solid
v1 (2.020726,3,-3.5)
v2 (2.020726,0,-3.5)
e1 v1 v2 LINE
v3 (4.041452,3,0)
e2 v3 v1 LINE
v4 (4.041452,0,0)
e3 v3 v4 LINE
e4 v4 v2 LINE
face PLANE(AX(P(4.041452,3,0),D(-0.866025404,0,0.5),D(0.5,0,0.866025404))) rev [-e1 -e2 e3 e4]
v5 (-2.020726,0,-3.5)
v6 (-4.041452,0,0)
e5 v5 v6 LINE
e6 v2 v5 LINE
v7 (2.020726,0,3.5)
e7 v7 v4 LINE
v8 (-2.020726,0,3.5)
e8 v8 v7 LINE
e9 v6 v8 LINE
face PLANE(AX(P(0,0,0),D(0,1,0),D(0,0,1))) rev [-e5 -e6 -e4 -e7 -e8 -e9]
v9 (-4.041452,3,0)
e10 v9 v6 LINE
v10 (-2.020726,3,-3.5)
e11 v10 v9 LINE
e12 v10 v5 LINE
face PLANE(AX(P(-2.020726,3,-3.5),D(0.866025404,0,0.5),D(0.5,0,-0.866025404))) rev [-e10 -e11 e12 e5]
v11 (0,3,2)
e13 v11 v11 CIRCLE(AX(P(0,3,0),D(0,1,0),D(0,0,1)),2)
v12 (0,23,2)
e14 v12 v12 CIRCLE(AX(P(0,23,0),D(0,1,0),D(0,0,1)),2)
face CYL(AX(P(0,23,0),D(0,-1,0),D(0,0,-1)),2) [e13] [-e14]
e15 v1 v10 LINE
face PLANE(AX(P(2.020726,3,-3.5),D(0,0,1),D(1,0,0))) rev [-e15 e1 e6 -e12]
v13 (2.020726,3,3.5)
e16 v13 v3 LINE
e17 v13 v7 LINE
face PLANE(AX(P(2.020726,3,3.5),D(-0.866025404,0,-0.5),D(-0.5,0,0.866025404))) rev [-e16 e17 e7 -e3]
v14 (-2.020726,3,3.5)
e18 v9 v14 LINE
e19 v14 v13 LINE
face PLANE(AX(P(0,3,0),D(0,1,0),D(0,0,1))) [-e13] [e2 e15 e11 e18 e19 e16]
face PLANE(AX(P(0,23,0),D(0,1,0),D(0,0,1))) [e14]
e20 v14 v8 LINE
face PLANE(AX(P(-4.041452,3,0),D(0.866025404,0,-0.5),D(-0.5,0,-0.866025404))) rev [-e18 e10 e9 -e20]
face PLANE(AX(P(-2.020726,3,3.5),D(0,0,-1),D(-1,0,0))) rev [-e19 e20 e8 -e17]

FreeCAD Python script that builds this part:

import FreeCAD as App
import Part
import Sketcher
Q = App.Units.Quantity


def add_polygon(sketch, points):
    """Adds a closed chain of lines whose ends are joined by coincident constraints."""
    first, n = sketch.GeometryCount, len(points)
    for a, b in zip(points, points[1:] + points[:1]):
        sketch.addGeometry(Part.LineSegment(App.Vector(*a, 0), App.Vector(*b, 0)), False)
    for i in range(n):
        sketch.addConstraint(Sketcher.Constraint("Coincident", first + i, 2, first + (i + 1) % n, 1))

doc = App.newDocument("Part")
body = doc.addObject("PartDesign::Body", "Body")

# Sketch on XZ plane
sketch1 = body.newObject("Sketcher::SketchObject", "Sketch")
sketch1.AttachmentSupport = (doc.getObject("XZ_Plane"), [""])
sketch1.MapMode = "FlatFace"
add_polygon(sketch1, [(-4, 0), (-2, 3.5), (2, 3.5), (4, 0), (2, -3.5), (-2, -3.5)])  # lines 0-5
sketch1.addConstraint(Sketcher.Constraint("Horizontal", 1))
sketch1.addConstraint(Sketcher.Constraint("Horizontal", 4))
sketch1.addConstraint(Sketcher.Constraint("Symmetric", 0, 2, 3, 2, -1, 1))
sketch1.addConstraint(Sketcher.Constraint("Symmetric", 2, 2, 5, 2, -1, 1))
sketch1.addConstraint(Sketcher.Constraint("PointOnObject", 2, 2, -1))
sketch1.addConstraint(Sketcher.Constraint("Parallel", 2, 5))
sketch1.addConstraint(Sketcher.Constraint("Vertical", 1, 2, 3, 2))
sketch1.addConstraint(Sketcher.Constraint("Angle", 0, Q("60 deg")))
sketch1.addConstraint(Sketcher.Constraint("DistanceY", 3, 2, 1, 2, Q("7 mm")))
sketch1.addConstraint(Sketcher.Constraint("DistanceX", 1, 1, 1, 2, Q("4.041452 mm")))
pad1 = body.newObject("PartDesign::Pad", "Pad")
pad1.Profile = sketch1
pad1.Length = 3
pad1.Reversed = True

# Sketch on XZ plane
sketch2 = body.newObject("Sketcher::SketchObject", "Sketch001")
sketch2.AttachmentSupport = (doc.getObject("XZ_Plane"), [""])
sketch2.MapMode = "FlatFace"
sketch2.AttachmentOffset = App.Placement(App.Vector(0, 0, -3), App.Rotation())
sketch2.addGeometry(Part.Circle(App.Vector(0, 0, 0), App.Vector(0, 0, 1), 2), False)
sketch2.addConstraint(Sketcher.Constraint("Coincident", 0, 3, -1, 1))
sketch2.addConstraint(Sketcher.Constraint("Diameter", 0, Q("4 mm")))
pad2 = body.newObject("PartDesign::Pad", "Pad001")
pad2.Profile = sketch2
pad2.Length = 20
pad2.Reversed = True

doc.recompute()
